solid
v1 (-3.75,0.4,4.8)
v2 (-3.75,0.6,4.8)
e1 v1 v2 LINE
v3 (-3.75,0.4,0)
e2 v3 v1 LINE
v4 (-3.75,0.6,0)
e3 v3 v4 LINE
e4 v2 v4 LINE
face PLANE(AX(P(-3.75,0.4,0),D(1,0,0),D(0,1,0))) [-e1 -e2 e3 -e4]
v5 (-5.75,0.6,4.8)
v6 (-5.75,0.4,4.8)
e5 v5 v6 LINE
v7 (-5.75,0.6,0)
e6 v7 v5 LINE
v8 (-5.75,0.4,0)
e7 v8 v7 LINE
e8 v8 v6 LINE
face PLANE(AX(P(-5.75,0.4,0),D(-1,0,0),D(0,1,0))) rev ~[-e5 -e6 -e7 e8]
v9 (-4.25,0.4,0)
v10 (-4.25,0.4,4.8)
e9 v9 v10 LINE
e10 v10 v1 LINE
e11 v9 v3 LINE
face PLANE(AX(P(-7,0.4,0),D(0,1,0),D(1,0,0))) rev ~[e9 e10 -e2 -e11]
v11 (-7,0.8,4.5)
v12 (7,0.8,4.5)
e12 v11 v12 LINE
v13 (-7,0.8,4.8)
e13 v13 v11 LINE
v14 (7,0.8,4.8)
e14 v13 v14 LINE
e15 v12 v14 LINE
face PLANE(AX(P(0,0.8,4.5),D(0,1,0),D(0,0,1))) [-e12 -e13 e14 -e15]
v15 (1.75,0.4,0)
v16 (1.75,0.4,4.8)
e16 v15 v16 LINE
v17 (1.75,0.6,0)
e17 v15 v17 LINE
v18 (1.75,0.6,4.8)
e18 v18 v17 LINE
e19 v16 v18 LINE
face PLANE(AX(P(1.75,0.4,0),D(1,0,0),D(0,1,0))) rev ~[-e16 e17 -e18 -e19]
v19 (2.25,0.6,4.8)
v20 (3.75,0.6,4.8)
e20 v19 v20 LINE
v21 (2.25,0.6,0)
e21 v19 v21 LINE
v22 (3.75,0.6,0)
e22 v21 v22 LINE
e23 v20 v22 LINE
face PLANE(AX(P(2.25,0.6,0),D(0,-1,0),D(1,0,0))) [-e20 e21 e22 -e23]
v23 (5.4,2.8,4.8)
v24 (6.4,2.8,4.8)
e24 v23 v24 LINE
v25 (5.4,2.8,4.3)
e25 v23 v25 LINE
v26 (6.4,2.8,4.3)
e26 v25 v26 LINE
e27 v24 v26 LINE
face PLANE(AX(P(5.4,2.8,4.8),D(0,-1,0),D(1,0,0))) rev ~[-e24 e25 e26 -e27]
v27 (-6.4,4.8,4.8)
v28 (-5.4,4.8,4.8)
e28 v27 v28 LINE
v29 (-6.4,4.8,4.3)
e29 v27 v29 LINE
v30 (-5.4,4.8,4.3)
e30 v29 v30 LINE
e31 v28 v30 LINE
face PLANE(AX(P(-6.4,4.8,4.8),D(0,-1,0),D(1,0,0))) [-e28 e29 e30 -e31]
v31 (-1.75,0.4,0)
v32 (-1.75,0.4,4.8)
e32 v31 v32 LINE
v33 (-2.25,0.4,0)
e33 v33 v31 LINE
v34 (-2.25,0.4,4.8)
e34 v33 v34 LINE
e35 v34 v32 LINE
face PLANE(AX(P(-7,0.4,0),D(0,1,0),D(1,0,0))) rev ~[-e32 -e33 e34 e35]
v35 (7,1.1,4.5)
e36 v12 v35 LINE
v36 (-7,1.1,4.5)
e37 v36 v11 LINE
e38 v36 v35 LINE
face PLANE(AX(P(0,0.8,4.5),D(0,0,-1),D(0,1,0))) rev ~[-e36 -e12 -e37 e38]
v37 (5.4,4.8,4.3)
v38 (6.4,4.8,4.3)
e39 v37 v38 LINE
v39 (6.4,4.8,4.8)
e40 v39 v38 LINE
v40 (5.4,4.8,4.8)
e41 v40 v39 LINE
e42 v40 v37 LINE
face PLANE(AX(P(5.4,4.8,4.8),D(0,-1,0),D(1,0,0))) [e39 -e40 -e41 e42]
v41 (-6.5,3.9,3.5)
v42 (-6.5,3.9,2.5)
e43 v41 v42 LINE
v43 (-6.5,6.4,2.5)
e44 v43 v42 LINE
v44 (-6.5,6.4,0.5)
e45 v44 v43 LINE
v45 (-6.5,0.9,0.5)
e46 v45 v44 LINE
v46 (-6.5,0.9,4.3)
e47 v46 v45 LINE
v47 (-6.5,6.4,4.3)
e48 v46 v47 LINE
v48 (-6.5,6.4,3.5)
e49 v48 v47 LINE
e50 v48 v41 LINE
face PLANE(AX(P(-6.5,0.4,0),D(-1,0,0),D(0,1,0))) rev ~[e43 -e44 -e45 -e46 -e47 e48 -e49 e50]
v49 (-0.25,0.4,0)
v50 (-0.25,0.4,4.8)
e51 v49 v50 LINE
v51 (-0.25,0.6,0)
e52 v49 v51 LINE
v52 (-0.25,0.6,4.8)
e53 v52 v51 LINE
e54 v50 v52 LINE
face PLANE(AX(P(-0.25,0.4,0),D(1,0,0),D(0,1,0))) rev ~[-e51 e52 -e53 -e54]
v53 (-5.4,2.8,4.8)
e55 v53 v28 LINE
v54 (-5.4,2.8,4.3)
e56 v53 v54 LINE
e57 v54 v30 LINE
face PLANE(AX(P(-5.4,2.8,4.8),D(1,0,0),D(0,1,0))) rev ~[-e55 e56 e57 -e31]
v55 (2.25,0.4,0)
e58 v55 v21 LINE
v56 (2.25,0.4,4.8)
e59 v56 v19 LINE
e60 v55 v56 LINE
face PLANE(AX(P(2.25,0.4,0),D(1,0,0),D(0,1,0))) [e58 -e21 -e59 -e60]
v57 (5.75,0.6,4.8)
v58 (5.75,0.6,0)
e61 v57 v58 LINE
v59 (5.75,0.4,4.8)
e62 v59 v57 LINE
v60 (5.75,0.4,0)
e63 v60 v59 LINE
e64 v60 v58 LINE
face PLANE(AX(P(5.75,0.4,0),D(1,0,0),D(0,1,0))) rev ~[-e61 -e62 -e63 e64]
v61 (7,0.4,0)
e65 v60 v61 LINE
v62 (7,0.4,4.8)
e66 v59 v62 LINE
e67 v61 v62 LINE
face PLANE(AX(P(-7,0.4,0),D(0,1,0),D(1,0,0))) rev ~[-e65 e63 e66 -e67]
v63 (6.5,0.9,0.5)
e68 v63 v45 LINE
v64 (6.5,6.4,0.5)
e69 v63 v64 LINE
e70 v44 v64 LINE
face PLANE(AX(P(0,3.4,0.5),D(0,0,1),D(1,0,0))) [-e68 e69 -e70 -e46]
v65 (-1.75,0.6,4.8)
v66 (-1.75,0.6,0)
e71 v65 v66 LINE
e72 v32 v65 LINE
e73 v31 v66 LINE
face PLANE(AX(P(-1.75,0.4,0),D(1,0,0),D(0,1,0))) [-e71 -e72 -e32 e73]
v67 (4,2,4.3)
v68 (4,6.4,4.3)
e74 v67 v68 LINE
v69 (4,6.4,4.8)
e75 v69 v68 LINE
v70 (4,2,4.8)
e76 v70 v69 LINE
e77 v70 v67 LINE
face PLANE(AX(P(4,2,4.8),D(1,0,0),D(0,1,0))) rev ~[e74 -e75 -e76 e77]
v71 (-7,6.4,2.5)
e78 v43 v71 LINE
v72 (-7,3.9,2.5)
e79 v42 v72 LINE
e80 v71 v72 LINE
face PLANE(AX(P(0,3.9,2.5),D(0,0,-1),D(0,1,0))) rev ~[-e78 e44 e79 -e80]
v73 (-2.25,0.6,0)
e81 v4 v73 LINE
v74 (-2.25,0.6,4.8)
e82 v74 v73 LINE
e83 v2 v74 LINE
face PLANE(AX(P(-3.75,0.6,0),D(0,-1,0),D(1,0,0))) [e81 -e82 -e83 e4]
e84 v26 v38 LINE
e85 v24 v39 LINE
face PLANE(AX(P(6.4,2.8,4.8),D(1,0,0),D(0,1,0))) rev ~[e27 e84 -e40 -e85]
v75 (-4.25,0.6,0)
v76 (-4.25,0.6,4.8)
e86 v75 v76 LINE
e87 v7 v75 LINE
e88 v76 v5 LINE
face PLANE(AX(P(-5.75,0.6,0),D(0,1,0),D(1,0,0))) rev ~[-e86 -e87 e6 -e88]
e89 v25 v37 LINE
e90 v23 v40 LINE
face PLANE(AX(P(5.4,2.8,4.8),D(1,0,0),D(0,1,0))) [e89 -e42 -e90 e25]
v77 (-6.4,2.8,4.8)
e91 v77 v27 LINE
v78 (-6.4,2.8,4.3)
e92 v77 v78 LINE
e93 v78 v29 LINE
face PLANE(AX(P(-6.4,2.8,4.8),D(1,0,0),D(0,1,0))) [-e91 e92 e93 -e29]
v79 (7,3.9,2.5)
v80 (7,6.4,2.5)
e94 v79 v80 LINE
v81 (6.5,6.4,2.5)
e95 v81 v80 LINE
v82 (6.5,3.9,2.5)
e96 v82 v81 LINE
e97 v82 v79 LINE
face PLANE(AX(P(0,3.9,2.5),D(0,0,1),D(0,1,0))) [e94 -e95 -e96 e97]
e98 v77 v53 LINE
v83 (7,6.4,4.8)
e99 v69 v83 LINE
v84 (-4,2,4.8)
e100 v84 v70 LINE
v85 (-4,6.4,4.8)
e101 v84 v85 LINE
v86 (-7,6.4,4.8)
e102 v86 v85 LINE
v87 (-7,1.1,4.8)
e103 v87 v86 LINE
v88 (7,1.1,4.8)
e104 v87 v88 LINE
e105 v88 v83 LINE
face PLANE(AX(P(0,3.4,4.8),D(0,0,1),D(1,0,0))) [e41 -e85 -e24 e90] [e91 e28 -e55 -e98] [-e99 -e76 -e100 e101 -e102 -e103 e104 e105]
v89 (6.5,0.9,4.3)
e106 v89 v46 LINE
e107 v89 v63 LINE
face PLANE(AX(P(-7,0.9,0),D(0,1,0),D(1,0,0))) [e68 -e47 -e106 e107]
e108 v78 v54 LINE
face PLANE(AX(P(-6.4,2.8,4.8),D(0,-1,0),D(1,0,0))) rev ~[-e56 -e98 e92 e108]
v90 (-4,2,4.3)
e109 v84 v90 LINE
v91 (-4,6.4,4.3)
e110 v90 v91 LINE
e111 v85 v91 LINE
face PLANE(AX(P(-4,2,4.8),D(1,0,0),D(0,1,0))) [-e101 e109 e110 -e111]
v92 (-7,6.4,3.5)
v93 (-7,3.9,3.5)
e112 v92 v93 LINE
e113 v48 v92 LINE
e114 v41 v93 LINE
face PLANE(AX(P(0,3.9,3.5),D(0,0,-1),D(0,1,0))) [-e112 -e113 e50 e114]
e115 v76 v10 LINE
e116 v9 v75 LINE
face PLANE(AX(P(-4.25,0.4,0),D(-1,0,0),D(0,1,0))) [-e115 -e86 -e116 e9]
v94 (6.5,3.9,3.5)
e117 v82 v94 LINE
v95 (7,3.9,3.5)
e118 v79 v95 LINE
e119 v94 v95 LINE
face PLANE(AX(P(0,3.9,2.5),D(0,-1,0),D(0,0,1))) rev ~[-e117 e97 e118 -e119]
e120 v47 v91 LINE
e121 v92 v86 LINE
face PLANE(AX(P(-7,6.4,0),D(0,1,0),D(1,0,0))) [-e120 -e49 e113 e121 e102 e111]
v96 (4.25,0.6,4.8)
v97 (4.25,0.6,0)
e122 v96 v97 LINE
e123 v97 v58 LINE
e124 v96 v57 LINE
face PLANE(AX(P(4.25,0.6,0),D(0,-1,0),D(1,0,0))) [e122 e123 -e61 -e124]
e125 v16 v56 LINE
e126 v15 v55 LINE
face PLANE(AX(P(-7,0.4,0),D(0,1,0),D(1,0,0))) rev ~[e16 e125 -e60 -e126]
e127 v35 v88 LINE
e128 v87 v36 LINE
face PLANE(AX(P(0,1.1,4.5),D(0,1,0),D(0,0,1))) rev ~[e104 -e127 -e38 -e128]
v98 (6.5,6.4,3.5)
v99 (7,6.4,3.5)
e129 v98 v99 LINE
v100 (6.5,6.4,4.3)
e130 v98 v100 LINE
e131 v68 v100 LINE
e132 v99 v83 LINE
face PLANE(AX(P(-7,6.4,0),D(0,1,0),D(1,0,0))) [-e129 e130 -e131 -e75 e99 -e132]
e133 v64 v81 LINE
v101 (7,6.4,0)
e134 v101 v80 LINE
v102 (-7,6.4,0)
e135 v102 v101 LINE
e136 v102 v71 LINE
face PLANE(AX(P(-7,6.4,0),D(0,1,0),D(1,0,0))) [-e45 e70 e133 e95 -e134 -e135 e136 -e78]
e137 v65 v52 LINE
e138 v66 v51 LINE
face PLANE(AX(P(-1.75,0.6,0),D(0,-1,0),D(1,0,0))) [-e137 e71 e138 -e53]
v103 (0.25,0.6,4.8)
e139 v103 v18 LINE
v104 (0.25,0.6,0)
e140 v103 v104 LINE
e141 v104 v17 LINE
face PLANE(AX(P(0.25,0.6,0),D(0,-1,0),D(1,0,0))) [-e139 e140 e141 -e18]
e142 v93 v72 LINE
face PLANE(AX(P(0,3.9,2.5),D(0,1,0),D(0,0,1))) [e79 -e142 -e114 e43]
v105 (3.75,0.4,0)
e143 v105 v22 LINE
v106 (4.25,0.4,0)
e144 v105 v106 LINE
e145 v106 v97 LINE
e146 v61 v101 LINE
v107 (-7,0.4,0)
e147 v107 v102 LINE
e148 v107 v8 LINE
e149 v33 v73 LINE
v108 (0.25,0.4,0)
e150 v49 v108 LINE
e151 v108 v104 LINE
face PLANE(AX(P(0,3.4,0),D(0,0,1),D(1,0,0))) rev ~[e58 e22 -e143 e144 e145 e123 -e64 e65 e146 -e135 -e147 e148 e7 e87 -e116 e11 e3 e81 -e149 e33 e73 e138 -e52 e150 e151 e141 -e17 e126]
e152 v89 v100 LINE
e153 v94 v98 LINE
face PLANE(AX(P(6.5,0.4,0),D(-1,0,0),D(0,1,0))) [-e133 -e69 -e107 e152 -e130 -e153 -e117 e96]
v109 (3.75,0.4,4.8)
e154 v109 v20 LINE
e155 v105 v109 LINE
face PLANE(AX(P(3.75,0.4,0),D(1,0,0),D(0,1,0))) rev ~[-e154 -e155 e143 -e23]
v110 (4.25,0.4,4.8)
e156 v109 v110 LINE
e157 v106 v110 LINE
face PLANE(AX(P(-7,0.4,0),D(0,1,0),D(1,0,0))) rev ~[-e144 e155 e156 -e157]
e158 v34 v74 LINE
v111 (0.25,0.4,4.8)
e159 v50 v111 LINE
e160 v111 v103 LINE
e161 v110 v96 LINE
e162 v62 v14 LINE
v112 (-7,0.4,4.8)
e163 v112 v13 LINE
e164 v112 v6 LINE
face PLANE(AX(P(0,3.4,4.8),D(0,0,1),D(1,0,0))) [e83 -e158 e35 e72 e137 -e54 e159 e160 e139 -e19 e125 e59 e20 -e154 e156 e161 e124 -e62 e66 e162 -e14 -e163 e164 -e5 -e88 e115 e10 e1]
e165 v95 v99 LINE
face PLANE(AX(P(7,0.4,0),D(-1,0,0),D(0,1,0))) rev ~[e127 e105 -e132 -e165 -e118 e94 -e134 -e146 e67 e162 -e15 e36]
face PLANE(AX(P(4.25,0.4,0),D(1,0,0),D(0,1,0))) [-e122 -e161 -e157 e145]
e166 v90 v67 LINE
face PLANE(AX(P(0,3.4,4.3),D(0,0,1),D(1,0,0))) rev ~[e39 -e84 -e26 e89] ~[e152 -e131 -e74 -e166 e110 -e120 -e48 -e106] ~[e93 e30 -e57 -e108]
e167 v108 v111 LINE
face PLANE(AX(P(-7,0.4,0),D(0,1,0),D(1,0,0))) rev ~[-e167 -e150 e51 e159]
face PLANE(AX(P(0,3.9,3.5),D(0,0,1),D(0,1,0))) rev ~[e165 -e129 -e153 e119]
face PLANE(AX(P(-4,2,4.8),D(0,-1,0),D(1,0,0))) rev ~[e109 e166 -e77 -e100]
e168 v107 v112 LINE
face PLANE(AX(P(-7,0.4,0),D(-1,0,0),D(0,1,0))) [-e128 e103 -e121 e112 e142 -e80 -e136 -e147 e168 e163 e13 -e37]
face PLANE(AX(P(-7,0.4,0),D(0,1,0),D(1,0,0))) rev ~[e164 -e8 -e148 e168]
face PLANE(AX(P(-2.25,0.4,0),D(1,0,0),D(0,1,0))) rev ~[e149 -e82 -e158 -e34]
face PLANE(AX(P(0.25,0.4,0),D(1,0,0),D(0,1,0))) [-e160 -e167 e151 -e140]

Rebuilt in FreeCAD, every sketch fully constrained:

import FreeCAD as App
import Part
import Sketcher
from FreeCAD import Vector
Q = App.Units.Quantity


def faces_at(feature, points):
    """Names of the faces that lie closest to the given points."""
    faces = feature.Shape.Faces
    near = lambda p: min(range(len(faces)), key=lambda i: faces[i].distToShape(Part.Vertex(*p))[0])
    return sorted({f"Face{near(p) + 1}" for p in points})


def add_polygon(sketch, points):
    """Adds a closed chain of lines whose ends are joined by coincident constraints."""
    first, n = sketch.GeometryCount, len(points)
    for a, b in zip(points, points[1:] + points[:1]):
        sketch.addGeometry(Part.LineSegment(App.Vector(*a, 0), App.Vector(*b, 0)), False)
    for i in range(n):
        sketch.addConstraint(Sketcher.Constraint("Coincident", first + i, 2, first + (i + 1) % n, 1))

doc = App.newDocument("Part")
params = doc.addObject("Spreadsheet::Sheet", "Params")
for row, (alias, value) in enumerate([
    ("sketch1_width", "14 mm"),
    ("sketch1_height", "6 mm"),
    ("pad1_length", "4.8 mm"),
    ("thickness_wall", "0.5 mm"),
    ("sketch2_width", "8 mm"),
    ("sketch2_width2", "1 mm"),
    ("sketch2_height", "2 mm"),
    ("sketch2_height2", "4.4 mm"),
    ("pocket1_length", "0.5 mm"),
    ("sketch3_height", "1 mm"),
    ("sketch3_width", "2.5 mm"),
    ("sketch3_width2", "0.3 mm"),
    ("sketch4_width", "1.5 mm"),
    ("sketch4_height", "0.2 mm"),
    ("linearpattern_pitch", "2 mm"),
], start=1):
    params.set(f"A{row}", alias)
    params.set(f"B{row}", "=" + value)
    params.setAlias(f"B{row}", alias)

body = doc.addObject("PartDesign::Body", "Body")

sketch1 = body.newObject("Sketcher::SketchObject", "Sketch")
sketch1.AttachmentSupport = (doc.getObject("XY_Plane"), [""])
sketch1.MapMode = "FlatFace"
add_polygon(sketch1, [(-7, 6), (-7, 0), (7, 0), (7, 6)])
sketch1.addConstraint(Sketcher.Constraint("Vertical", 0))
sketch1.addConstraint(Sketcher.Constraint("Horizontal", 1))
sketch1.addConstraint(Sketcher.Constraint("Vertical", 2))
sketch1.addConstraint(Sketcher.Constraint("Horizontal", 3))
sketch1.addConstraint(Sketcher.Constraint("DistanceX", 1, 1, 1, 2, Q("14 mm")))
sketch1.addConstraint(Sketcher.Constraint("DistanceY", 0, 2, 0, 1, Q("6 mm")))
sketch1.addConstraint(Sketcher.Constraint("DistanceX", 0, 2, -1, 1, Q("7 mm")))
sketch1.addConstraint(Sketcher.Constraint("DistanceY", -1, 1, 0, 2, Q("0.4 mm")))
sketch1.setExpression("Constraints[8]", "Params.sketch1_width")
sketch1.setExpression("Constraints[9]", "Params.sketch1_height")
pad1 = body.newObject("PartDesign::Pad", "Pad")
pad1.Profile = sketch1
pad1.setExpression("Length", "Params.pad1_length")
doc.recompute()

thickness = body.newObject("PartDesign::Thickness", "Thickness")
thickness.Base = (pad1, faces_at(pad1, [(0, 6.4, 2.4)]))
thickness.setExpression("Value", "Params.thickness_wall")
thickness.Reversed = True
thickness.Join = "Arc"

sketch2 = body.newObject("Sketcher::SketchObject", "Sketch001")
sketch2.AttachmentSupport = (doc.getObject("XY_Plane"), [""])
sketch2.MapMode = "FlatFace"
sketch2.AttachmentOffset = App.Placement(Vector(0, 0, 4.8), App.Rotation())
add_polygon(sketch2, [(-4, 6.4), (-4, 2), (4, 2), (4, 6.4)])
add_polygon(sketch2, [(5.4, 4.8), (5.4, 2.8), (6.4, 2.8), (6.4, 4.8)])
add_polygon(sketch2, [(-6.4, 4.8), (-6.4, 2.8), (-5.4, 2.8), (-5.4, 4.8)])
sketch2.addConstraint(Sketcher.Constraint("Vertical", 0))
sketch2.addConstraint(Sketcher.Constraint("Horizontal", 1))
sketch2.addConstraint(Sketcher.Constraint("Vertical", 2))
sketch2.addConstraint(Sketcher.Constraint("Horizontal", 3))
sketch2.addConstraint(Sketcher.Constraint("Vertical", 4))
sketch2.addConstraint(Sketcher.Constraint("Horizontal", 5))
sketch2.addConstraint(Sketcher.Constraint("Vertical", 6))
sketch2.addConstraint(Sketcher.Constraint("Horizontal", 7))
sketch2.addConstraint(Sketcher.Constraint("Vertical", 8))
sketch2.addConstraint(Sketcher.Constraint("Horizontal", 9))
sketch2.addConstraint(Sketcher.Constraint("Vertical", 10))
sketch2.addConstraint(Sketcher.Constraint("Horizontal", 11))
sketch2.addConstraint(Sketcher.Constraint("Symmetric", 5, 2, 8, 2, -2))
sketch2.addConstraint(Sketcher.Constraint("Symmetric", 7, 2, 10, 2, -2))
sketch2.addConstraint(Sketcher.Constraint("DistanceX", 1, 1, 1, 2, Q("8 mm")))
sketch2.addConstraint(Sketcher.Constraint("DistanceX", 5, 1, 5, 2, Q("1 mm")))
sketch2.addConstraint(Sketcher.Constraint("DistanceY", 4, 2, 4, 1, Q("2 mm")))
sketch2.addConstraint(Sketcher.Constraint("DistanceY", 0, 2, 0, 1, Q("4.4 mm")))
sketch2.addConstraint(Sketcher.Constraint("DistanceX", 0, 2, -1, 1, Q("4 mm")))
sketch2.addConstraint(Sketcher.Constraint("DistanceY", -1, 1, 0, 2, Q("2 mm")))
sketch2.addConstraint(Sketcher.Constraint("DistanceX", -1, 1, 4, 2, Q("5.4 mm")))
sketch2.addConstraint(Sketcher.Constraint("DistanceY", -1, 1, 4, 2, Q("2.8 mm")))
sketch2.setExpression("Constraints[26]", "Params.sketch2_width")
sketch2.setExpression("Constraints[27]", "Params.sketch2_width2")
sketch2.setExpression("Constraints[28]", "Params.sketch2_height")
sketch2.setExpression("Constraints[29]", "Params.sketch2_height2")
pocket1 = body.newObject("PartDesign::Pocket", "Pocket")
pocket1.Profile = sketch2
pocket1.setExpression("Length", "Params.pocket1_length")

sketch3 = body.newObject("Sketcher::SketchObject", "Sketch002")
sketch3.AttachmentSupport = (doc.getObject("YZ_Plane"), [""])
sketch3.MapMode = "FlatFace"
add_polygon(sketch3, [(3.9, 3.5), (3.9, 2.5), (6.4, 2.5), (6.4, 3.5)])
add_polygon(sketch3, [(0.8, 4.8), (0.8, 4.5), (1.1, 4.5), (1.1, 4.8)])
sketch3.addConstraint(Sketcher.Constraint("Vertical", 0))
sketch3.addConstraint(Sketcher.Constraint("Horizontal", 1))
sketch3.addConstraint(Sketcher.Constraint("Vertical", 2))
sketch3.addConstraint(Sketcher.Constraint("Horizontal", 3))
sketch3.addConstraint(Sketcher.Constraint("Vertical", 4))
sketch3.addConstraint(Sketcher.Constraint("Horizontal", 5))
sketch3.addConstraint(Sketcher.Constraint("Vertical", 6))
sketch3.addConstraint(Sketcher.Constraint("Horizontal", 7))
sketch3.addConstraint(Sketcher.Constraint("Equal", 7, 4))
sketch3.addConstraint(Sketcher.Constraint("DistanceY", 0, 2, 0, 1, Q("1 mm")))
sketch3.addConstraint(Sketcher.Constraint("DistanceX", 1, 1, 1, 2, Q("2.5 mm")))
sketch3.addConstraint(Sketcher.Constraint("DistanceX", 5, 1, 5, 2, Q("0.3 mm")))
sketch3.addConstraint(Sketcher.Constraint("DistanceY", 3, 2, 4, 2, Q("1 mm")))
sketch3.addConstraint(Sketcher.Constraint("DistanceX", -1, 1, 0, 2, Q("3.9 mm")))
sketch3.addConstraint(Sketcher.Constraint("DistanceY", -1, 1, 0, 2, Q("2.5 mm")))
sketch3.addConstraint(Sketcher.Constraint("DistanceX", -1, 1, 4, 2, Q("0.8 mm")))
sketch3.setExpression("Constraints[17]", "Params.sketch3_height")
sketch3.setExpression("Constraints[18]", "Params.sketch3_width")
sketch3.setExpression("Constraints[19]", "Params.sketch3_width2")
pocket2 = body.newObject("PartDesign::Pocket", "Pocket001")
pocket2.Profile = sketch3
pocket2.Type = "ThroughAll"
pocket2.Midplane = True

sketch4 = body.newObject("Sketcher::SketchObject", "Sketch003")
sketch4.AttachmentSupport = (doc.getObject("XY_Plane"), [""])
sketch4.MapMode = "FlatFace"
add_polygon(sketch4, [(-5.75, 0.6), (-5.75, 0.4), (-4.25, 0.4), (-4.25, 0.6)])
sketch4.addConstraint(Sketcher.Constraint("Vertical", 0))
sketch4.addConstraint(Sketcher.Constraint("Horizontal", 1))
sketch4.addConstraint(Sketcher.Constraint("Vertical", 2))
sketch4.addConstraint(Sketcher.Constraint("Horizontal", 3))
sketch4.addConstraint(Sketcher.Constraint("DistanceX", 1, 1, 1, 2, Q("1.5 mm")))
sketch4.addConstraint(Sketcher.Constraint("DistanceY", 0, 2, 0, 1, Q("0.2 mm")))
sketch4.addConstraint(Sketcher.Constraint("DistanceY", -1, 1, 0, 2, Q("0.4 mm")))
sketch4.addConstraint(Sketcher.Constraint("DistanceX", 0, 2, -1, 1, Q("5.75 mm")))
sketch4.setExpression("Constraints[8]", "Params.sketch4_width")
sketch4.setExpression("Constraints[9]", "Params.sketch4_height")
pocket3 = body.newObject("PartDesign::Pocket", "Pocket002")
pocket3.Profile = sketch4
pocket3.Type = "ThroughAll"
pocket3.Midplane = True
doc.recompute()

linearpattern = body.newObject("PartDesign::LinearPattern", "LinearPattern")
linearpattern.Originals = [pocket3]
linearpattern.Direction = (doc.getObject("X_Axis"), [""])
linearpattern.Mode = "offset"
linearpattern.setExpression("Offset", "Params.linearpattern_pitch")
linearpattern.Occurrences = 6
body.Tip = linearpattern

doc.recompute()
